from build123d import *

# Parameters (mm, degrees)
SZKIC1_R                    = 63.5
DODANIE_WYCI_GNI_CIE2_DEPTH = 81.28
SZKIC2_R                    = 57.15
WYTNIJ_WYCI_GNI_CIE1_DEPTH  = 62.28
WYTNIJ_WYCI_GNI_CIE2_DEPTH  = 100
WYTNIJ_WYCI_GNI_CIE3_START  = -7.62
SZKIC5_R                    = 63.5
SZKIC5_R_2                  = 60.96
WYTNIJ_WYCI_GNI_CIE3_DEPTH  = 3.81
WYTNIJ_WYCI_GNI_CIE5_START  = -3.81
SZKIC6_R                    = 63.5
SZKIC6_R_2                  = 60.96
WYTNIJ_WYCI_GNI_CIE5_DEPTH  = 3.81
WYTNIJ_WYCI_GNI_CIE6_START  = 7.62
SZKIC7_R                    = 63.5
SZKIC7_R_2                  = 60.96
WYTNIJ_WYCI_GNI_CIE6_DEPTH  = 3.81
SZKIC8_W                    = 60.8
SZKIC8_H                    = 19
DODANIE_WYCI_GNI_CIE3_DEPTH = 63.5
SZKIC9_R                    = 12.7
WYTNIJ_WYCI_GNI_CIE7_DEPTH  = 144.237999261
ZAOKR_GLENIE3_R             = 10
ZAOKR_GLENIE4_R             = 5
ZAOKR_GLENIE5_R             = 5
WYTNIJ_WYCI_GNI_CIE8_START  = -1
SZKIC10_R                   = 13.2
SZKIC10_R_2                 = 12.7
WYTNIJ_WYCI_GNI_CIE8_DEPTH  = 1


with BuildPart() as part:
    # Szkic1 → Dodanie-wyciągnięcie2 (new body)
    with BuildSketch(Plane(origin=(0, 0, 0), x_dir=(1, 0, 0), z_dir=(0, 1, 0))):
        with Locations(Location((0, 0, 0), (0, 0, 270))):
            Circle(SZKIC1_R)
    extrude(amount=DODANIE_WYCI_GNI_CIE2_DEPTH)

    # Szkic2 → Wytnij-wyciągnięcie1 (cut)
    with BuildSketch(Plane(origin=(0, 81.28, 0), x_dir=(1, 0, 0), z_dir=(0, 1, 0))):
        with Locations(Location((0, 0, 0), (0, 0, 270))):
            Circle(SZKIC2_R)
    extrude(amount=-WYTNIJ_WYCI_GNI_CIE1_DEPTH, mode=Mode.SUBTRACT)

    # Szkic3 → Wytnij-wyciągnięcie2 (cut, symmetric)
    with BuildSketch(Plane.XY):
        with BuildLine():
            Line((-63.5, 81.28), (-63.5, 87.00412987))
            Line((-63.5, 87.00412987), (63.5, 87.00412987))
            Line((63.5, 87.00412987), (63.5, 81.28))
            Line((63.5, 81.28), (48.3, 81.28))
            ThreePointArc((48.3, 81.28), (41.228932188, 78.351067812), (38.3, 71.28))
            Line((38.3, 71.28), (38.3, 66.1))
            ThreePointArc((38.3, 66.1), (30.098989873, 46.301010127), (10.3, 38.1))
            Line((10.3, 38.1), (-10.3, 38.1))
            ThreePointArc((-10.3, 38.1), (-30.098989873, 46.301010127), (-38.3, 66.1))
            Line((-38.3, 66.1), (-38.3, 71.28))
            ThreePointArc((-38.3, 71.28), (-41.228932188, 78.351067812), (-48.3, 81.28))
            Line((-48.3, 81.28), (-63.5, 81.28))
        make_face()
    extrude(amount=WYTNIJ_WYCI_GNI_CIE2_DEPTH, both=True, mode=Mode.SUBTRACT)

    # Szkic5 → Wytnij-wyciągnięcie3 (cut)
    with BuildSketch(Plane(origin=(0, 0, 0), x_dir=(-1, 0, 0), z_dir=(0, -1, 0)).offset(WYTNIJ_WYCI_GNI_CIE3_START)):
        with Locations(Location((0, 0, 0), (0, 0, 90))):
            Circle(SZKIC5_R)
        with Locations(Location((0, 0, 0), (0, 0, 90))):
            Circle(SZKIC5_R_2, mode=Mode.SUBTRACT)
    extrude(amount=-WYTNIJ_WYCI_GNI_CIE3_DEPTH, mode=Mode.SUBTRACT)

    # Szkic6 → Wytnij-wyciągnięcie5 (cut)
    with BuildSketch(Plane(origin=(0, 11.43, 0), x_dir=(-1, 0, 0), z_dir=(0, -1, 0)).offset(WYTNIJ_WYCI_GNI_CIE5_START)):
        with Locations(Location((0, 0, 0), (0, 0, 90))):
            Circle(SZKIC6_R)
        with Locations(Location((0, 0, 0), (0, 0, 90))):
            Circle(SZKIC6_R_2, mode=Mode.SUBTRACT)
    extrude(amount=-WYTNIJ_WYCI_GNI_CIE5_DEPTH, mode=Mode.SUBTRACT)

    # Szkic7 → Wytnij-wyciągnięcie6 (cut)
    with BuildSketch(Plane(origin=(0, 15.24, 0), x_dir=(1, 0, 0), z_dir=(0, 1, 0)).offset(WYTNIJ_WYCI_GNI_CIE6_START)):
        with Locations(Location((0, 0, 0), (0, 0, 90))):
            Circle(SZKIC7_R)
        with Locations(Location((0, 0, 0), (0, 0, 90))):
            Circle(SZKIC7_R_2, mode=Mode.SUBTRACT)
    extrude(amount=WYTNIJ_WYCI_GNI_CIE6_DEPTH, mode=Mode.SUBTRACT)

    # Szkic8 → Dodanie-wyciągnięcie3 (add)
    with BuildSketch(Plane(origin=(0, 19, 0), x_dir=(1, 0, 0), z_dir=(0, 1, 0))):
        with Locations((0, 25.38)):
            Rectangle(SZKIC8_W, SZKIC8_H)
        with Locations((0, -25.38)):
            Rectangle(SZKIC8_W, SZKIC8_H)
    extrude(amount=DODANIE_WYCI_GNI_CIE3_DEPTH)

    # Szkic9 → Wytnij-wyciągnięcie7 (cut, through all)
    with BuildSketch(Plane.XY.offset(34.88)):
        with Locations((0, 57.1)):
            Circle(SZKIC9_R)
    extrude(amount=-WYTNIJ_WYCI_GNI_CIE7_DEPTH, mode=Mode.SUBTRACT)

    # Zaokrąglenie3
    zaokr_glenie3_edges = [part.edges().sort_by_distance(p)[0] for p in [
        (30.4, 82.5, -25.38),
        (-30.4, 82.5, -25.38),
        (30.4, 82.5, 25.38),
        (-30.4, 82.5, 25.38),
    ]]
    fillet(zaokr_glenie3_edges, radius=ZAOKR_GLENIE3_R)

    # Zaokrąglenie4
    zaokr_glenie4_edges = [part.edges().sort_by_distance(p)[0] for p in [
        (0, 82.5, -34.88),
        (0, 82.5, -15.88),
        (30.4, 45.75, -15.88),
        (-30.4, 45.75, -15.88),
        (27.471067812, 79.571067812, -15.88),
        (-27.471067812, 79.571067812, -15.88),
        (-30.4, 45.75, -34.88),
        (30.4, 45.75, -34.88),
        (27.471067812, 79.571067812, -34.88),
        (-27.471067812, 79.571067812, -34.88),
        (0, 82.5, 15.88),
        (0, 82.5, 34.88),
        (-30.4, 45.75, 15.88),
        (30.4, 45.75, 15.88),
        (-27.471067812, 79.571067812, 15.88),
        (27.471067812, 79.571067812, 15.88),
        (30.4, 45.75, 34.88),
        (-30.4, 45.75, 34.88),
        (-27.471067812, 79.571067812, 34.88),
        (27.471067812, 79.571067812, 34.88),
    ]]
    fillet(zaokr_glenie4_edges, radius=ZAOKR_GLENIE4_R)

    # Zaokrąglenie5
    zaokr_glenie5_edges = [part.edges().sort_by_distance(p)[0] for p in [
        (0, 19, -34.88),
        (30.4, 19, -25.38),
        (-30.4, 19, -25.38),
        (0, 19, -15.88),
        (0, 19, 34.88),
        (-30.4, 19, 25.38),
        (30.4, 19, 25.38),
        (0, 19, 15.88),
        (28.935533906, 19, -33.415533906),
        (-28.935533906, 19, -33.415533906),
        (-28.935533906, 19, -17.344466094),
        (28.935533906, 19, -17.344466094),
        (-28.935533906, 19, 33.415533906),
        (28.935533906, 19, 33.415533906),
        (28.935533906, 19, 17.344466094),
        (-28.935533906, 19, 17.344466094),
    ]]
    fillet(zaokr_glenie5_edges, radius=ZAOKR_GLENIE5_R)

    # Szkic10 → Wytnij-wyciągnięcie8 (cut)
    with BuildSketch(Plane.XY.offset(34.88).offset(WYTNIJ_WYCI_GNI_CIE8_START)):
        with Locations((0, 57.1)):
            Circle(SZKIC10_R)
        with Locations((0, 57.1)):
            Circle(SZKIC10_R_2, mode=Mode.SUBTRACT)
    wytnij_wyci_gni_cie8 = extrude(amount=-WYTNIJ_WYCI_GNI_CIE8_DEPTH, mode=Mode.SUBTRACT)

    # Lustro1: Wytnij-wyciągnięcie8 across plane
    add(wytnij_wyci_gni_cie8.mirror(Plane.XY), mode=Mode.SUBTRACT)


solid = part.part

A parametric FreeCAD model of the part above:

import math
import FreeCAD as App
import Part
import Sketcher
from FreeCAD import Vector
Q = App.Units.Quantity


def edges_at(feature, points):
    """Names of the edges that pass closest to the given points."""
    edges = feature.Shape.Edges
    near = lambda p: min(range(len(edges)), key=lambda i: edges[i].distToShape(Part.Vertex(*p))[0])
    return sorted({f"Edge{near(p) + 1}" for p in points})


def add_polygon(sketch, points):
    """Adds a closed chain of lines whose ends are joined by coincident constraints."""
    first, n = sketch.GeometryCount, len(points)
    for a, b in zip(points, points[1:] + points[:1]):
        sketch.addGeometry(Part.LineSegment(App.Vector(*a, 0), App.Vector(*b, 0)), False)
    for i in range(n):
        sketch.addConstraint(Sketcher.Constraint("Coincident", first + i, 2, first + (i + 1) % n, 1))

doc = App.newDocument("Part")
body = doc.addObject("PartDesign::Body", "Body")

# Sketch on XZ plane
sketch1 = body.newObject("Sketcher::SketchObject", "Sketch")
sketch1.AttachmentSupport = (doc.getObject("XZ_Plane"), [""])
sketch1.MapMode = "FlatFace"
sketch1.addGeometry(Part.Circle(Vector(0, 0, 0), Vector(0, 0, 1), 64), False)
sketch1.addConstraint([
    Sketcher.Constraint("Coincident", 0, 3, -1, 1),
    Sketcher.Constraint("Diameter", 0, Q("127 mm")),
])
pad1 = body.newObject("PartDesign::Pad", "Pad")
pad1.Profile = sketch1
pad1.Length = 81.28
pad1.Reversed = True

# Sketch on XZ plane
sketch2 = body.newObject("Sketcher::SketchObject", "Sketch001")
sketch2.AttachmentSupport = (doc.getObject("XZ_Plane"), [""])
sketch2.MapMode = "FlatFace"
sketch2.AttachmentOffset = App.Placement(Vector(0, 0, -81.28), App.Rotation())
sketch2.addGeometry(Part.Circle(Vector(0, 0, 0), Vector(0, 0, 1), 57), False)
sketch2.addConstraint([
    Sketcher.Constraint("Coincident", 0, 3, -1, 1),
    Sketcher.Constraint("Diameter", 0, Q("114.3 mm")),
])
pocket1 = body.newObject("PartDesign::Pocket", "Pocket")
pocket1.Profile = sketch2
pocket1.Length = 62.28
pocket1.Reversed = True

# Sketch on XY plane
sketch3 = body.newObject("Sketcher::SketchObject", "Sketch002")
sketch3.AttachmentSupport = (doc.getObject("XY_Plane"), [""])
sketch3.MapMode = "FlatFace"
sketch3.addGeometry([
    Part.LineSegment(Vector(-64, 87, 0), Vector(-64, 81, 0)),  # 0
    Part.LineSegment(Vector(-64, 81, 0), Vector(-48, 81, 0)),  # 1
    Part.ArcOfCircle(Part.Circle(Vector(-48, 71, 0), Vector(0, 0, 1), 10), math.radians(0), math.radians(90)),  # 2
    Part.LineSegment(Vector(-38, 71, 0), Vector(-38, 66, 0)),  # 3
    Part.ArcOfCircle(Part.Circle(Vector(-10, 66, 0), Vector(0, 0, 1), 28), math.radians(-180), math.radians(-90)),  # 4
    Part.LineSegment(Vector(-10, 38, 0), Vector(10, 38, 0)),  # 5
    Part.ArcOfCircle(Part.Circle(Vector(10, 66, 0), Vector(0, 0, 1), 28), math.radians(-90), math.radians(0)),  # 6
    Part.LineSegment(Vector(38, 66, 0), Vector(38, 71, 0)),  # 7
    Part.ArcOfCircle(Part.Circle(Vector(48, 71, 0), Vector(0, 0, 1), 10), math.radians(90), math.radians(180)),  # 8
    Part.LineSegment(Vector(48, 81, 0), Vector(64, 81, 0)),  # 9
    Part.LineSegment(Vector(64, 81, 0), Vector(64, 87, 0)),  # 10
    Part.LineSegment(Vector(64, 87, 0), Vector(-64, 87, 0)),  # 11
], False)
sketch3.addConstraint([
    Sketcher.Constraint("Coincident", 0, 2, 1, 1),
    Sketcher.Constraint("Tangent", 1, 2, 2, 2),
    Sketcher.Constraint("Tangent", 2, 1, 3, 1),
    Sketcher.Constraint("Tangent", 3, 2, 4, 1),
    Sketcher.Constraint("Tangent", 4, 2, 5, 1),
    Sketcher.Constraint("Tangent", 5, 2, 6, 1),
    Sketcher.Constraint("Tangent", 6, 2, 7, 1),
    Sketcher.Constraint("Tangent", 7, 2, 8, 2),
    Sketcher.Constraint("Tangent", 8, 1, 9, 1),
    Sketcher.Constraint("Coincident", 9, 2, 10, 1),
    Sketcher.Constraint("Coincident", 10, 2, 11, 1),
    Sketcher.Constraint("Coincident", 11, 2, 0, 1),
    Sketcher.Constraint("Vertical", 0),
    Sketcher.Constraint("Horizontal", 1),
    Sketcher.Constraint("Vertical", 3),
    Sketcher.Constraint("Horizontal", 5),
    Sketcher.Constraint("Vertical", 7),
    Sketcher.Constraint("Horizontal", 9),
    Sketcher.Constraint("Vertical", 10),
    Sketcher.Constraint("Horizontal", 11),
    Sketcher.Constraint("Equal", 4, 6),
    Sketcher.Constraint("Equal", 2, 8),
    Sketcher.Constraint("Symmetric", 2, 3, 8, 3, -2),
    Sketcher.Constraint("Equal", 1, 9),
    Sketcher.Constraint("Radius", 2, Q("10 mm")),
    Sketcher.Constraint("Radius", 4, Q("28 mm")),
    Sketcher.Constraint("DistanceX", 11, 2, 11, 1, Q("127 mm")),
    Sketcher.Constraint("DistanceX", 1, 1, 1, 2, Q("15.2 mm")),
    Sketcher.Constraint("DistanceY", 3, 2, 3, 1, Q("5.18 mm")),
    Sketcher.Constraint("DistanceY", -1, 1, 4, 3, Q("66.1 mm")),
    Sketcher.Constraint("DistanceY", 0, 2, 0, 1, Q("5.72413 mm")),
])
pocket2 = body.newObject("PartDesign::Pocket", "Pocket001")
pocket2.Profile = sketch3
pocket2.Length = 200
pocket2.Midplane = True

# Sketch on XZ plane
sketch4 = body.newObject("Sketcher::SketchObject", "Sketch003")
sketch4.AttachmentSupport = (doc.getObject("XZ_Plane"), [""])
sketch4.MapMode = "FlatFace"
sketch4.AttachmentOffset = App.Placement(Vector(0, 0, -7.62), App.Rotation())
sketch4.addGeometry([
    Part.Circle(Vector(0, 0, 0), Vector(0, 0, 1), 64),
    Part.Circle(Vector(0, 0, 0), Vector(0, 0, 1), 61),
], False)
sketch4.addConstraint([
    Sketcher.Constraint("Coincident", 0, 3, -1, 1),
    Sketcher.Constraint("Coincident", 1, 3, -1, 1),
    Sketcher.Constraint("Diameter", 0, Q("127 mm")),
    Sketcher.Constraint("Diameter", 1, Q("121.92 mm")),
])
pocket3 = body.newObject("PartDesign::Pocket", "Pocket002")
pocket3.Profile = sketch4
pocket3.Length = 3.81

# Sketch on XZ plane
sketch5 = body.newObject("Sketcher::SketchObject", "Sketch004")
sketch5.AttachmentSupport = (doc.getObject("XZ_Plane"), [""])
sketch5.MapMode = "FlatFace"
sketch5.AttachmentOffset = App.Placement(Vector(0, 0, -15.24), App.Rotation())
sketch5.addGeometry([
    Part.Circle(Vector(0, 0, 0), Vector(0, 0, 1), 64),
    Part.Circle(Vector(0, 0, 0), Vector(0, 0, 1), 61),
], False)
sketch5.addConstraint([
    Sketcher.Constraint("Coincident", 0, 3, -1, 1),
    Sketcher.Constraint("Coincident", 1, 3, -1, 1),
    Sketcher.Constraint("Diameter", 0, Q("127 mm")),
    Sketcher.Constraint("Diameter", 1, Q("121.92 mm")),
])
pocket4 = body.newObject("PartDesign::Pocket", "Pocket003")
pocket4.Profile = sketch5
pocket4.Length = 3.81

# Sketch on XZ plane
sketch6 = body.newObject("Sketcher::SketchObject", "Sketch005")
sketch6.AttachmentSupport = (doc.getObject("XZ_Plane"), [""])
sketch6.MapMode = "FlatFace"
sketch6.AttachmentOffset = App.Placement(Vector(0, 0, -22.86), App.Rotation())
sketch6.addGeometry([
    Part.Circle(Vector(0, 0, 0), Vector(0, 0, 1), 64),
    Part.Circle(Vector(0, 0, 0), Vector(0, 0, 1), 61),
], False)
sketch6.addConstraint([
    Sketcher.Constraint("Coincident", 0, 3, -1, 1),
    Sketcher.Constraint("Coincident", 1, 3, -1, 1),
    Sketcher.Constraint("Diameter", 0, Q("127 mm")),
    Sketcher.Constraint("Diameter", 1, Q("121.92 mm")),
])
pocket5 = body.newObject("PartDesign::Pocket", "Pocket004")
pocket5.Profile = sketch6
pocket5.Length = 3.81

# Sketch on XZ plane
sketch7 = body.newObject("Sketcher::SketchObject", "Sketch006")
sketch7.AttachmentSupport = (doc.getObject("XZ_Plane"), [""])
sketch7.MapMode = "FlatFace"
sketch7.AttachmentOffset = App.Placement(Vector(0, 0, -19), App.Rotation())
add_polygon(sketch7, [(-30, -35), (-30, -16), (30, -16), (30, -35)])  # lines 0-3
add_polygon(sketch7, [(-30, 16), (-30, 35), (30, 35), (30, 16)])  # lines 4-7
sketch7.addConstraint([
    Sketcher.Constraint("Vertical", 0),
    Sketcher.Constraint("Horizontal", 1),
    Sketcher.Constraint("Vertical", 2),
    Sketcher.Constraint("Horizontal", 3),
    Sketcher.Constraint("Vertical", 4),
    Sketcher.Constraint("Horizontal", 5),
    Sketcher.Constraint("Vertical", 6),
    Sketcher.Constraint("Horizontal", 7),
    Sketcher.Constraint("Symmetric", 2, 2, 4, 2, -1, 1),
    Sketcher.Constraint("Symmetric", 0, 2, 6, 2, -1, 1),
    Sketcher.Constraint("Vertical", 3, 2, 4, 2),
    Sketcher.Constraint("DistanceY", 0, 1, 0, 2, Q("19 mm")),
    Sketcher.Constraint("DistanceX", 1, 1, 1, 2, Q("60.8 mm")),
    Sketcher.Constraint("DistanceY", 0, 2, -1, 1, Q("15.88 mm")),
])
pad2 = body.newObject("PartDesign::Pad", "Pad001")
pad2.Profile = sketch7
pad2.Length = 63.5
pad2.Reversed = True

# Sketch on XY plane
sketch8 = body.newObject("Sketcher::SketchObject", "Sketch007")
sketch8.AttachmentSupport = (doc.getObject("XY_Plane"), [""])
sketch8.MapMode = "FlatFace"
sketch8.AttachmentOffset = App.Placement(Vector(0, 0, 34.88), App.Rotation())
sketch8.addGeometry(Part.Circle(Vector(0, 57, 0), Vector(0, 0, 1), 13), False)
sketch8.addConstraint([
    Sketcher.Constraint("PointOnObject", 0, 3, -2),
    Sketcher.Constraint("Diameter", 0, Q("25.4 mm")),
    Sketcher.Constraint("DistanceY", -1, 1, 0, 3, Q("57.1 mm")),
])
pocket6 = body.newObject("PartDesign::Pocket", "Pocket005")
pocket6.Profile = sketch8
pocket6.Type = "ThroughAll"
doc.recompute()

fillet = body.newObject("PartDesign::Fillet", "Fillet")
fillet.Base = (pocket6, edges_at(pocket6, [
    (30.4, 82.5, -25.38),
    (-30.4, 82.5, -25.38),
    (30.4, 82.5, 25.38),
    (-30.4, 82.5, 25.38),
]))
fillet.Radius = 10
doc.recompute()

fillet2 = body.newObject("PartDesign::Fillet", "Fillet001")
fillet2.Base = (fillet, edges_at(fillet, [
    (0, 82.5, -34.88),
    (0, 82.5, -15.88),
    (30.4, 45.75, -15.88),
    (-30.4, 45.75, -15.88),
    (27.471, 79.571, -15.88),
    (-27.471, 79.571, -15.88),
    (-30.4, 45.75, -34.88),
    (30.4, 45.75, -34.88),
    (27.471, 79.571, -34.88),
    (-27.471, 79.571, -34.88),
    (0, 82.5, 15.88),
    (0, 82.5, 34.88),
    (-30.4, 45.75, 15.88),
    (30.4, 45.75, 15.88),
    (-27.471, 79.571, 15.88),
    (27.471, 79.571, 15.88),
    (30.4, 45.75, 34.88),
    (-30.4, 45.75, 34.88),
    (-27.471, 79.571, 34.88),
    (27.471, 79.571, 34.88),
]))
fillet2.Radius = 5
doc.recompute()

fillet3 = body.newObject("PartDesign::Fillet", "Fillet002")
fillet3.Base = (fillet2, edges_at(fillet2, [
    (0, 19, -34.88),
    (30.4, 19, -25.38),
    (-30.4, 19, -25.38),
    (0, 19, -15.88),
    (0, 19, 34.88),
    (-30.4, 19, 25.38),
    (30.4, 19, 25.38),
    (0, 19, 15.88),
    (28.936, 19, -33.416),
    (-28.936, 19, -33.416),
    (-28.936, 19, -17.344),
    (28.936, 19, -17.344),
    (-28.936, 19, 33.416),
    (28.936, 19, 33.416),
    (28.936, 19, 17.344),
    (-28.936, 19, 17.344),
]))
fillet3.Radius = 5

# Sketch on XY plane
sketch9 = body.newObject("Sketcher::SketchObject", "Sketch008")
sketch9.AttachmentSupport = (doc.getObject("XY_Plane"), [""])
sketch9.MapMode = "FlatFace"
sketch9.AttachmentOffset = App.Placement(Vector(0, 0, 33.88), App.Rotation())
sketch9.addGeometry([
    Part.Circle(Vector(0, 57, 0), Vector(0, 0, 1), 13),
    Part.Circle(Vector(0, 57, 0), Vector(0, 0, 1), 13),
], False)
sketch9.addConstraint([
    Sketcher.Constraint("Coincident", 1, 3, 0, 3),
    Sketcher.Constraint("PointOnObject", 0, 3, -2),
    Sketcher.Constraint("Diameter", 0, Q("26.4 mm")),
    Sketcher.Constraint("Diameter", 1, Q("25.4 mm")),
    Sketcher.Constraint("DistanceY", -1, 1, 0, 3, Q("57.1 mm")),
])
pocket7 = body.newObject("PartDesign::Pocket", "Pocket006")
pocket7.Profile = sketch9
pocket7.Length = 1
doc.recompute()

mirrored = body.newObject("PartDesign::Mirrored", "Mirrored")
mirrored.Originals = [pocket7]
mirrored.MirrorPlane = (doc.getObject("XY_Plane"), [""])
body.Tip = mirrored

doc.recompute()
